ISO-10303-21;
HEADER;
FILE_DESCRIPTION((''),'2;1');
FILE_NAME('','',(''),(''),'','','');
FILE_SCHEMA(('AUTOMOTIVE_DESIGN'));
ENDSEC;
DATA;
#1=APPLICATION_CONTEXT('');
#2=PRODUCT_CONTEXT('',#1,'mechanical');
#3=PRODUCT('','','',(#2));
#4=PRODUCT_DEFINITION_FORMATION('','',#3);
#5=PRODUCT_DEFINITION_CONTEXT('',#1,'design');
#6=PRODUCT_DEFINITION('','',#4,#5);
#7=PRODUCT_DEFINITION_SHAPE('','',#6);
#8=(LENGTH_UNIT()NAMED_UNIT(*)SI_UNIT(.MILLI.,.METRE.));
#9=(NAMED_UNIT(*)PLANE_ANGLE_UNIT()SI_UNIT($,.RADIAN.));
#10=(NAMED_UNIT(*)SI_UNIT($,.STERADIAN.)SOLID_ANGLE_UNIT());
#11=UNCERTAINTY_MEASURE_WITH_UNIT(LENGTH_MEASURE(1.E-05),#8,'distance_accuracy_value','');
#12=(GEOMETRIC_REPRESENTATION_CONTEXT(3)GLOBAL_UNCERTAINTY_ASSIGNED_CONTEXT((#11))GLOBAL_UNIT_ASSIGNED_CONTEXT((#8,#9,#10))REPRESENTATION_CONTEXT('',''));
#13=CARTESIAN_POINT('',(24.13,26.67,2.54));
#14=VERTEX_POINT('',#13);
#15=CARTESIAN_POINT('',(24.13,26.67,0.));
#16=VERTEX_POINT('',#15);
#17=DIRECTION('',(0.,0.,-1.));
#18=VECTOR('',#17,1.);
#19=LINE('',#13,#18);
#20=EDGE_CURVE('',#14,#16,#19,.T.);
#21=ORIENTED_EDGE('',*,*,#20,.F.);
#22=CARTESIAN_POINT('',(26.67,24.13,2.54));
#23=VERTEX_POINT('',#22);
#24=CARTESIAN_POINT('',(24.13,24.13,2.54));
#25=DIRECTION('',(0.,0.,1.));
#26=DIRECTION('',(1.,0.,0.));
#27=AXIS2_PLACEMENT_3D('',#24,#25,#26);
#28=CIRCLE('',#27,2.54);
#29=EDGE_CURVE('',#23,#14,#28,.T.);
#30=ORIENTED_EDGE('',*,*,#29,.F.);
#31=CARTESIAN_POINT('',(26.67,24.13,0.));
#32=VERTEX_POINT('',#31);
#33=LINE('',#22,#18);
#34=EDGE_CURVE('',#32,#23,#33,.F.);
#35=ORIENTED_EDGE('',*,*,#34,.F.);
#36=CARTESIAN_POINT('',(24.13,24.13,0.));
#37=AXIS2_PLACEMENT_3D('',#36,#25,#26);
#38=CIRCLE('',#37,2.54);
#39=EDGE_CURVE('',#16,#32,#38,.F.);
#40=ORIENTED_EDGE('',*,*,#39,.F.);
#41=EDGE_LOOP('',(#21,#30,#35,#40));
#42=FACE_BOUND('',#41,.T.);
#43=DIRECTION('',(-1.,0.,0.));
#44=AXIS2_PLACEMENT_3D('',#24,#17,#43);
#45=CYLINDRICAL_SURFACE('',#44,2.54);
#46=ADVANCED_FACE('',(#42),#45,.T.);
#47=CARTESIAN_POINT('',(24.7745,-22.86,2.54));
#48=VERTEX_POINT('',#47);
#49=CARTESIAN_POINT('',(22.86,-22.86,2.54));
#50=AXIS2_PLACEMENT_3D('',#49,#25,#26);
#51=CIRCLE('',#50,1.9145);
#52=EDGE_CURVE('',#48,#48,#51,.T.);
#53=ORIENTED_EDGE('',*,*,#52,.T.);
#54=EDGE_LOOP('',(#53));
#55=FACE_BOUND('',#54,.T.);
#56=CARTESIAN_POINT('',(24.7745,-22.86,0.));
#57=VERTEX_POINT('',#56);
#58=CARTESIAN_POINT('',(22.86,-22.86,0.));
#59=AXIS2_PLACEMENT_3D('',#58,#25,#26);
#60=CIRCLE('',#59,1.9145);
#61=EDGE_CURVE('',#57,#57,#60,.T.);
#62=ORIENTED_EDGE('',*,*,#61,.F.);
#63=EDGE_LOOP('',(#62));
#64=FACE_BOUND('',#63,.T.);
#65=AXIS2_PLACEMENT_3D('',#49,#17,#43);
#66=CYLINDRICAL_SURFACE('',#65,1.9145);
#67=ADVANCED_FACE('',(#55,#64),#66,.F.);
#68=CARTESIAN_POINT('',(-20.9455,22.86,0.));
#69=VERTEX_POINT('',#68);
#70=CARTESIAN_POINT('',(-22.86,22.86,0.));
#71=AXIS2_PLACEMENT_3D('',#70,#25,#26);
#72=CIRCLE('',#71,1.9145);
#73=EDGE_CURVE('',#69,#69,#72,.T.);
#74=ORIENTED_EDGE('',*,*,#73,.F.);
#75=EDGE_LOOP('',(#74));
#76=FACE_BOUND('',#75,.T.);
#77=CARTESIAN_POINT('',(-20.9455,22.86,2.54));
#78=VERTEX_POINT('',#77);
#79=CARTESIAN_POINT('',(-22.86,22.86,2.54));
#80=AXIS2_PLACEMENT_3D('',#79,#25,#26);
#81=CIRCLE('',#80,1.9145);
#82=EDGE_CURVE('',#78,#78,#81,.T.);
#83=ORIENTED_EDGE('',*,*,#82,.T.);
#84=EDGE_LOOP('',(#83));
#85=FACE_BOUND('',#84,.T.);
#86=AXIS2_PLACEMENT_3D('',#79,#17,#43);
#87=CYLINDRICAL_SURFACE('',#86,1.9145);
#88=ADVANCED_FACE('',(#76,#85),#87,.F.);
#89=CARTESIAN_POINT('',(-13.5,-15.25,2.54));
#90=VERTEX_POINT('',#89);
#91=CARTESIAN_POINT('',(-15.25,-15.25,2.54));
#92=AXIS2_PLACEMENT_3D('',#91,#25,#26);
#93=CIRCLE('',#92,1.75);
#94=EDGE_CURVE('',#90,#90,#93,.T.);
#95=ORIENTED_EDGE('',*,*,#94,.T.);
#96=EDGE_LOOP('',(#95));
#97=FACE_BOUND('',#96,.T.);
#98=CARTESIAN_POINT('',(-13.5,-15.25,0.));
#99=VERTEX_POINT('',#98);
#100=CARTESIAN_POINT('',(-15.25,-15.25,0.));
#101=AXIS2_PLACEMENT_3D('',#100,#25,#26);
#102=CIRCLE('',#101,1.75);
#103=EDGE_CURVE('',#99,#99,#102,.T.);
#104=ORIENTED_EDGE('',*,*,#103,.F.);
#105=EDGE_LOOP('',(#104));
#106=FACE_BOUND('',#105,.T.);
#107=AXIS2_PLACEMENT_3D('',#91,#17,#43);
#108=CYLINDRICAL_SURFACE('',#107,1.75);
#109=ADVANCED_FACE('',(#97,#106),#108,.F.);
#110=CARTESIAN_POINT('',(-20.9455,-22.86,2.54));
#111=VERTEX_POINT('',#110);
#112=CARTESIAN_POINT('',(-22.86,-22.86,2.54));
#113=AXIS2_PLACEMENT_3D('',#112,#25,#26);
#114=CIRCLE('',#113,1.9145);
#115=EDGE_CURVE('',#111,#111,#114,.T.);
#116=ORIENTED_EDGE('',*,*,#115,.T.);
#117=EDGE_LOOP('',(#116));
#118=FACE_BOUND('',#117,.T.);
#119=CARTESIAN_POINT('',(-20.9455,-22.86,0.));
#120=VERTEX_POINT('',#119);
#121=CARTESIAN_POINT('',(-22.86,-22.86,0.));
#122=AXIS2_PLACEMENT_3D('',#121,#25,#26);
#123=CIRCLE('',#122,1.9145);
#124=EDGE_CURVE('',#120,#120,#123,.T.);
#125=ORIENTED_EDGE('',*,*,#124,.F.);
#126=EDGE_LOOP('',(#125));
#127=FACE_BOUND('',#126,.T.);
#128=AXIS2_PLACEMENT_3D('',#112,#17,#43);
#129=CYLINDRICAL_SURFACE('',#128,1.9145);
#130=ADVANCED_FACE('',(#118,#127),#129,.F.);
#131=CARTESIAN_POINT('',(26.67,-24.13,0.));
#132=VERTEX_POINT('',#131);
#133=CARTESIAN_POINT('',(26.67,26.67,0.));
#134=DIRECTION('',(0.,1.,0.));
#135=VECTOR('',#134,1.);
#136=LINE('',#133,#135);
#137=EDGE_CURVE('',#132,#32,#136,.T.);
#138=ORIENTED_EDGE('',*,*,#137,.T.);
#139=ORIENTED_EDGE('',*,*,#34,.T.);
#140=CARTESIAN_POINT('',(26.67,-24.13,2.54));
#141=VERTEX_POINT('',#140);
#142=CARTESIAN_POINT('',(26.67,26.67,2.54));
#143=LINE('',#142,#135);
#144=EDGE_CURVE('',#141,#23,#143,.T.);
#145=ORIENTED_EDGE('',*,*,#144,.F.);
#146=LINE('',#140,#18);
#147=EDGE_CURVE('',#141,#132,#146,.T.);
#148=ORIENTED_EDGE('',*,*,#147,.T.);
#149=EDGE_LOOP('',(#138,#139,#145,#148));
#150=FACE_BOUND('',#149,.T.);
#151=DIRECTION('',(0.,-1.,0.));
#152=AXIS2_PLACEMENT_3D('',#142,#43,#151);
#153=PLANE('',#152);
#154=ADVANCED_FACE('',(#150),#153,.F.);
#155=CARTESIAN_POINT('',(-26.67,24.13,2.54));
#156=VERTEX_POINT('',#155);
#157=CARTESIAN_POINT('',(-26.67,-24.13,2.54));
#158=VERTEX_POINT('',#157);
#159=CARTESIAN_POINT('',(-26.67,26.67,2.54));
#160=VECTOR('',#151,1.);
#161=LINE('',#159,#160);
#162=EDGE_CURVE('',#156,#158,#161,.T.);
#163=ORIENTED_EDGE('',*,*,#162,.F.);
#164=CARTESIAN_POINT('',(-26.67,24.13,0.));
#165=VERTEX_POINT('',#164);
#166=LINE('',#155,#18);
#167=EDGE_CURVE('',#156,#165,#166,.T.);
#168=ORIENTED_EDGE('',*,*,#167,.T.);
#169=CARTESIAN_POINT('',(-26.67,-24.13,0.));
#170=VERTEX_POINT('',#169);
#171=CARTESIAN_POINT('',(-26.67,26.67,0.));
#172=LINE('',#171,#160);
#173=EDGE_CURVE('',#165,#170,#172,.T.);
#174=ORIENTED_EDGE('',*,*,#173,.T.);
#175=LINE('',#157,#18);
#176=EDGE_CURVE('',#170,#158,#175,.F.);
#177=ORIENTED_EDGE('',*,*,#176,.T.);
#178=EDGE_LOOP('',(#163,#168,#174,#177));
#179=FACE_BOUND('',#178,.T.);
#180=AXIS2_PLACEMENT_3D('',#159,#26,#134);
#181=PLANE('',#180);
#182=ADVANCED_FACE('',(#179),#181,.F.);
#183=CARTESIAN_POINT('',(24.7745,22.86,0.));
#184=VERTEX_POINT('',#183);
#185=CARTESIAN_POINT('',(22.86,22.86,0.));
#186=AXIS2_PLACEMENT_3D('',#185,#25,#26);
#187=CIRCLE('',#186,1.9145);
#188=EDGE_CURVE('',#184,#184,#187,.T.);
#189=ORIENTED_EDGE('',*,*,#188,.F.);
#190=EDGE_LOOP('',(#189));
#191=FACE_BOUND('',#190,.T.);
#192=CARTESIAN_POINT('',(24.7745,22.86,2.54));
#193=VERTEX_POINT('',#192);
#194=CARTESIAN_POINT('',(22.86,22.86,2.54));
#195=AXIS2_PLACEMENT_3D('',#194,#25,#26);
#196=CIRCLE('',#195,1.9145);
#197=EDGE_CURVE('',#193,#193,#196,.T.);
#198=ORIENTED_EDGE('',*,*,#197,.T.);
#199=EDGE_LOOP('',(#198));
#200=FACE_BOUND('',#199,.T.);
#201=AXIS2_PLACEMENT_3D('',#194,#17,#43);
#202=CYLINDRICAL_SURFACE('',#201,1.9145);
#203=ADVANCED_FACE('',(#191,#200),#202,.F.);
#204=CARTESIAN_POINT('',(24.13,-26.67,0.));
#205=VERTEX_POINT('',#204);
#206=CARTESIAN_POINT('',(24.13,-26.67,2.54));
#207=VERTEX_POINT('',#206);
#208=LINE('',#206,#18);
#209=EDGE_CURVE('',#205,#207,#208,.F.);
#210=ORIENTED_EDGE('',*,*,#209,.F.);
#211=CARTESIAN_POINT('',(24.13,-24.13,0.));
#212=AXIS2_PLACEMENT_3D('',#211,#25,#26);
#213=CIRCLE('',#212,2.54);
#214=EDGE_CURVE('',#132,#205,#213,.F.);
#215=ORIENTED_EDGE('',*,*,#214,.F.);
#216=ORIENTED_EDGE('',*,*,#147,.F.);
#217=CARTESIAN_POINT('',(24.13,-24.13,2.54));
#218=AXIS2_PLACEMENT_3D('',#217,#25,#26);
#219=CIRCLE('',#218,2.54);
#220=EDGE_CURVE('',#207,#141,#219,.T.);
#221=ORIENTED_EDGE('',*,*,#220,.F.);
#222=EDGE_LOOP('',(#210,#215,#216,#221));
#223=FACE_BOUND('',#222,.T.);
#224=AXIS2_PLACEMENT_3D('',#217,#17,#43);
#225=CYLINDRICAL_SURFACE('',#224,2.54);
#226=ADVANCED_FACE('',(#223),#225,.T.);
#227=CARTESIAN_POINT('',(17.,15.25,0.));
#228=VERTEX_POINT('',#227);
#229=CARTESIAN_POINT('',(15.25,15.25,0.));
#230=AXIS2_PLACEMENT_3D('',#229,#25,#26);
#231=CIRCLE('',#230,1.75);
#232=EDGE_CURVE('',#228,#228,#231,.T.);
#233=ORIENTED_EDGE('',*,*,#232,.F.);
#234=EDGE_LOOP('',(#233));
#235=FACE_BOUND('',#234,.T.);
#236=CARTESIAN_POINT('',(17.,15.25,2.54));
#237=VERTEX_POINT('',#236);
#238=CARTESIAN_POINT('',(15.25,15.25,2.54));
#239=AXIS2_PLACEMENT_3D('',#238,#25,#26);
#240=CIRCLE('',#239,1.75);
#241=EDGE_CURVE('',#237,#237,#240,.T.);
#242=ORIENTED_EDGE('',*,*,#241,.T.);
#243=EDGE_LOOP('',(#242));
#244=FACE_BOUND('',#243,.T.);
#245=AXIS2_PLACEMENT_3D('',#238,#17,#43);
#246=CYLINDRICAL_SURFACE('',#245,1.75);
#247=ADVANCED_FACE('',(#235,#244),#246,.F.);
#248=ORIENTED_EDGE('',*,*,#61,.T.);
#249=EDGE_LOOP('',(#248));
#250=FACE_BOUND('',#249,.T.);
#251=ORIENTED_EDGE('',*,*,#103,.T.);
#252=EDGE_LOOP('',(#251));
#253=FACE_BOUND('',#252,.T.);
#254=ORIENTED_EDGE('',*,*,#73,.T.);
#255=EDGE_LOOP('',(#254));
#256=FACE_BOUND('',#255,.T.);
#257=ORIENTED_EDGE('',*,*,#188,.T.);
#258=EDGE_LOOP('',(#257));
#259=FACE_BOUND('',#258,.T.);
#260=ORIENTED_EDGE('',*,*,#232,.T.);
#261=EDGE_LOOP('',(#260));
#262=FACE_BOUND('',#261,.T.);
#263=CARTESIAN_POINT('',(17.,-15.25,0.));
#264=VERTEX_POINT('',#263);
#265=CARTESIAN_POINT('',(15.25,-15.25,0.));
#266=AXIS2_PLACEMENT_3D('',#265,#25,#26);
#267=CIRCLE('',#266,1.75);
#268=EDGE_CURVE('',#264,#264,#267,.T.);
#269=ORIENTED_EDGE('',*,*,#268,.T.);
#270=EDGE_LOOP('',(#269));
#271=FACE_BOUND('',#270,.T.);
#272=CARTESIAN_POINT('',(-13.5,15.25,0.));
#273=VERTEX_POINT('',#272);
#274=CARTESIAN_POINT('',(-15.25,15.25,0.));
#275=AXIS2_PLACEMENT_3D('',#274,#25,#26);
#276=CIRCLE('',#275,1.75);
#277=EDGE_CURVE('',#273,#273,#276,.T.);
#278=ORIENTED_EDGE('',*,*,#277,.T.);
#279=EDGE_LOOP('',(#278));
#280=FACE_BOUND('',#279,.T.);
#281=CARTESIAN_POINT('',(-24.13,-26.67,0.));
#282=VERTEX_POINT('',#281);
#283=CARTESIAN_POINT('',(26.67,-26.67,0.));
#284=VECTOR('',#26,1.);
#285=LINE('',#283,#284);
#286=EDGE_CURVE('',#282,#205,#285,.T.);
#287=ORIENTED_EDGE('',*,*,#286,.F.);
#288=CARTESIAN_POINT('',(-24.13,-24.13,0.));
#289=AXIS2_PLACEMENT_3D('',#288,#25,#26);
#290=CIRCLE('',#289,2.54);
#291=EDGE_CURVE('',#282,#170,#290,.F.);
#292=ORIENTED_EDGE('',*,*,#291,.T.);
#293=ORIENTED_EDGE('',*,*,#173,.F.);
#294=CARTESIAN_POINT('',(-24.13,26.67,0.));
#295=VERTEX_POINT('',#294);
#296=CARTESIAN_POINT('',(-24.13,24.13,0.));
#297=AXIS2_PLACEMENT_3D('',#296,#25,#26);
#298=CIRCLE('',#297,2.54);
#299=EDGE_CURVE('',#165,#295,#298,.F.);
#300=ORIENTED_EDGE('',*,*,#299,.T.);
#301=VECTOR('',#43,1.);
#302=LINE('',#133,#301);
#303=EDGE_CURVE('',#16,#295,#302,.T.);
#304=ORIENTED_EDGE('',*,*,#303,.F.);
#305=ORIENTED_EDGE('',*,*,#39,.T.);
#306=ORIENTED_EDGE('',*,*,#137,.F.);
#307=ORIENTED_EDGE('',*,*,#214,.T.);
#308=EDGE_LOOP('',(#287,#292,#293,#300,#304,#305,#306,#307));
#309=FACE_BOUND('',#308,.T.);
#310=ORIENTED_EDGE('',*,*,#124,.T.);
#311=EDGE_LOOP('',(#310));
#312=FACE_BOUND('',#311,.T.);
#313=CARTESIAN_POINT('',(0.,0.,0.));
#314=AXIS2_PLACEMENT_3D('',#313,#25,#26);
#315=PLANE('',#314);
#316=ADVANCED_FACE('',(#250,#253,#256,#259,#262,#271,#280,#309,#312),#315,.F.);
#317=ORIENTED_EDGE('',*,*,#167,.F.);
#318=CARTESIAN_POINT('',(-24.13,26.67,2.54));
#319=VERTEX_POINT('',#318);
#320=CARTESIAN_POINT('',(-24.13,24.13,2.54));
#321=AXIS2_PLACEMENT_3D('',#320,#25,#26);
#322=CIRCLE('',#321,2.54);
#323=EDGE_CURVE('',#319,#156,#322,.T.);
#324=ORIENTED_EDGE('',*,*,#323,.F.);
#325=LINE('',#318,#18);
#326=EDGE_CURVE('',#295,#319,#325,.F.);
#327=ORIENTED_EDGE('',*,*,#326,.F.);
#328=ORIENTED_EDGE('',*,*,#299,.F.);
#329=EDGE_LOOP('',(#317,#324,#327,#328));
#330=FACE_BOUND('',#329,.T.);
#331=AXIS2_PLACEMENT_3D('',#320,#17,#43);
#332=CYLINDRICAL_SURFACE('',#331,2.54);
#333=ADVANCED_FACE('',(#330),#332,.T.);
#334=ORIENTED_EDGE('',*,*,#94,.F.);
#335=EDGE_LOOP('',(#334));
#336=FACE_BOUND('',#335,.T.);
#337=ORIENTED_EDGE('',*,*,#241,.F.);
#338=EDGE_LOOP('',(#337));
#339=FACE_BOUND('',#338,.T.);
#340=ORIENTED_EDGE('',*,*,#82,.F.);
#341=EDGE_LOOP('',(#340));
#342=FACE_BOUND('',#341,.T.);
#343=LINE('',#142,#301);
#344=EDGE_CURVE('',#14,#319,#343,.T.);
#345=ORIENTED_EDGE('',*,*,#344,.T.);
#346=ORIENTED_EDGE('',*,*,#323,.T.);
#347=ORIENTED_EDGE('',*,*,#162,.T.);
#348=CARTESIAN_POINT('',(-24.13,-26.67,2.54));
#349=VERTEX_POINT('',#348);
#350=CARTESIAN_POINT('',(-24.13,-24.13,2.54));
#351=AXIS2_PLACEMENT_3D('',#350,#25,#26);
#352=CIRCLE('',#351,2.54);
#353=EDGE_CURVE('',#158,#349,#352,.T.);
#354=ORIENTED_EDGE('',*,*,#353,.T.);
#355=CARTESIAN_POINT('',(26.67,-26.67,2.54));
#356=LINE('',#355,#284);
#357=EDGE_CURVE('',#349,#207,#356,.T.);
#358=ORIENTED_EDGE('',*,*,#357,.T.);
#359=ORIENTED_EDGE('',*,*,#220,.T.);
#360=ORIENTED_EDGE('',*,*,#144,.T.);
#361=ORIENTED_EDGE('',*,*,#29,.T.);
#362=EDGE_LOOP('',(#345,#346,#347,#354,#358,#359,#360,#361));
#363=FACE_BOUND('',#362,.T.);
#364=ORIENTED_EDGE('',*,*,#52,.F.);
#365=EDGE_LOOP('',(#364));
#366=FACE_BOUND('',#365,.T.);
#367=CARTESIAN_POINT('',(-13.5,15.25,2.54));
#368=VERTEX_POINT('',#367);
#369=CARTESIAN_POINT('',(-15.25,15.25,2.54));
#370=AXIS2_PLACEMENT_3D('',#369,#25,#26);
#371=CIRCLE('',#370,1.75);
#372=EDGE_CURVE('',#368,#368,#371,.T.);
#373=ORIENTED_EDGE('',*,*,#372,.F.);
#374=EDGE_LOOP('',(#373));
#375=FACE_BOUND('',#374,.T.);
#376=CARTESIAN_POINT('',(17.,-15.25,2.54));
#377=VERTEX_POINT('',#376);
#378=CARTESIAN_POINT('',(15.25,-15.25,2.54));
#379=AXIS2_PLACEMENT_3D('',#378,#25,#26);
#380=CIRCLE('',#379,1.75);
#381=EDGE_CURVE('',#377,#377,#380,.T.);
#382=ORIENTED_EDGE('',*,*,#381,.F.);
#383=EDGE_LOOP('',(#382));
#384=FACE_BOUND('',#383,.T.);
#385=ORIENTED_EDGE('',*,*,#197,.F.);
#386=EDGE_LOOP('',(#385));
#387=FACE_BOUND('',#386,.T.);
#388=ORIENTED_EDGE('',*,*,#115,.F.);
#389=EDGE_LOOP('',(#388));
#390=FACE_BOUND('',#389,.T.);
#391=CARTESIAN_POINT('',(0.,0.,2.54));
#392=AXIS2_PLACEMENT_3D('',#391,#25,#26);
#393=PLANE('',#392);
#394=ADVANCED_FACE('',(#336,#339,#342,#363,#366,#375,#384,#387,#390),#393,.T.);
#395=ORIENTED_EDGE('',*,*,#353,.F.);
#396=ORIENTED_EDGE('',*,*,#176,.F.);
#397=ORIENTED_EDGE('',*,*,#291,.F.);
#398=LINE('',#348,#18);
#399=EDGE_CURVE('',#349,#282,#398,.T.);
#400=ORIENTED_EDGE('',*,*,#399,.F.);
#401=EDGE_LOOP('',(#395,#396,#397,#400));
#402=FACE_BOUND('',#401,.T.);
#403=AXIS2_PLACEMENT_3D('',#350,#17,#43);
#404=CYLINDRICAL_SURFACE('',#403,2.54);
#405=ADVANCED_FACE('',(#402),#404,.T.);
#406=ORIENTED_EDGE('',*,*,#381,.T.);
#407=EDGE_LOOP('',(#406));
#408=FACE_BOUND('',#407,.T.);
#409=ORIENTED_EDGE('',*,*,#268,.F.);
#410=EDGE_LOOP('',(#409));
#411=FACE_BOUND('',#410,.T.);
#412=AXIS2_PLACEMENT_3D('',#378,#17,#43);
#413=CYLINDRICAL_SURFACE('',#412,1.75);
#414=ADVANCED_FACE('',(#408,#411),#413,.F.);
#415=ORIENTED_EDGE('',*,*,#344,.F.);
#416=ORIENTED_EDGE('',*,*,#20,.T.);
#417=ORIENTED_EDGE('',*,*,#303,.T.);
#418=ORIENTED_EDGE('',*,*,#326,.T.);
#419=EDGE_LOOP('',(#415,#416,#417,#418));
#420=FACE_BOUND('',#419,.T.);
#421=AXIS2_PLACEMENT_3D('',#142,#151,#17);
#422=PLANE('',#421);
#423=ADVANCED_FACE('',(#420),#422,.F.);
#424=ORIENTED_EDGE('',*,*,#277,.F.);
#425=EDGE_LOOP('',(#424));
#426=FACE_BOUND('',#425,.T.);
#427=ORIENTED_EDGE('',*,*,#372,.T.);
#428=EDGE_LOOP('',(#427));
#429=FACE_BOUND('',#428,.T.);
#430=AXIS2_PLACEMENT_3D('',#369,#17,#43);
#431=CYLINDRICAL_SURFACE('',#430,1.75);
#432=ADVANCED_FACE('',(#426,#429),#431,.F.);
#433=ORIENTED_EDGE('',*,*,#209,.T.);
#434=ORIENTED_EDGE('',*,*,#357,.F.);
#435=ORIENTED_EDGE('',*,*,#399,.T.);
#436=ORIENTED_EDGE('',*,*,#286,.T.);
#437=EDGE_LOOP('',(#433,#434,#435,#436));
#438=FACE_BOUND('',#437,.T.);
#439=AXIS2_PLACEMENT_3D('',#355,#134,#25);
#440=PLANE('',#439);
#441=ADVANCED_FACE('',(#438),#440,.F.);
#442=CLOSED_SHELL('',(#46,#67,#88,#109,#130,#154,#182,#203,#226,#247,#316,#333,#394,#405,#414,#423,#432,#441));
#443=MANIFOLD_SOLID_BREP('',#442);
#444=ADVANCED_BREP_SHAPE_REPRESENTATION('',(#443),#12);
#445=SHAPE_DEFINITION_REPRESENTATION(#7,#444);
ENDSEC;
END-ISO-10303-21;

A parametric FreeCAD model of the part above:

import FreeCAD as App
import Part
import Sketcher
from FreeCAD import Vector
Q = App.Units.Quantity


def edges_at(feature, points):
    """Names of the edges that pass closest to the given points."""
    edges = feature.Shape.Edges
    near = lambda p: min(range(len(edges)), key=lambda i: edges[i].distToShape(Part.Vertex(*p))[0])
    return sorted({f"Edge{near(p) + 1}" for p in points})


def add_polygon(sketch, points):
    """Adds a closed chain of lines whose ends are joined by coincident constraints."""
    first, n = sketch.GeometryCount, len(points)
    for a, b in zip(points, points[1:] + points[:1]):
        sketch.addGeometry(Part.LineSegment(App.Vector(*a, 0), App.Vector(*b, 0)), False)
    for i in range(n):
        sketch.addConstraint(Sketcher.Constraint("Coincident", first + i, 2, first + (i + 1) % n, 1))

doc = App.newDocument("Part")
body = doc.addObject("PartDesign::Body", "Body")

# Sketch on XY plane
sketch1 = body.newObject("Sketcher::SketchObject", "Sketch")
sketch1.AttachmentSupport = (doc.getObject("XY_Plane"), [""])
sketch1.MapMode = "FlatFace"
add_polygon(sketch1, [(-26.67, -26.67), (26.67, -26.67), (26.67, 26.67), (-26.67, 26.67)])  # lines 0-3
sketch1.addGeometry(Part.Circle(Vector(22.86, -22.86, 0), Vector(0, 0, 1), 1.9145), False)  # 4
sketch1.addGeometry(Part.Circle(Vector(15.25, -15.25, 0), Vector(0, 0, 1), 1.75), False)  # 5
sketch1.addGeometry(Part.Circle(Vector(22.86, 22.86, 0), Vector(0, 0, 1), 1.9145), False)  # 6
sketch1.addGeometry(Part.Circle(Vector(15.25, 15.25, 0), Vector(0, 0, 1), 1.75), False)  # 7
sketch1.addGeometry(Part.Circle(Vector(-15.25, -15.25, 0), Vector(0, 0, 1), 1.75), False)  # 8
sketch1.addGeometry(Part.Circle(Vector(-22.86, -22.86, 0), Vector(0, 0, 1), 1.9145), False)  # 9
sketch1.addGeometry(Part.Circle(Vector(-15.25, 15.25, 0), Vector(0, 0, 1), 1.75), False)  # 10
sketch1.addGeometry(Part.Circle(Vector(-22.86, 22.86, 0), Vector(0, 0, 1), 1.9145), False)  # 11
sketch1.addConstraint(Sketcher.Constraint("Horizontal", 0))
sketch1.addConstraint(Sketcher.Constraint("Vertical", 1))
sketch1.addConstraint(Sketcher.Constraint("Horizontal", 2))
sketch1.addConstraint(Sketcher.Constraint("Vertical", 3))
sketch1.addConstraint(Sketcher.Constraint("Equal", 4, 6))
sketch1.addConstraint(Sketcher.Constraint("Equal", 5, 7))
sketch1.addConstraint(Sketcher.Constraint("Equal", 7, 8))
sketch1.addConstraint(Sketcher.Constraint("Equal", 6, 9))
sketch1.addConstraint(Sketcher.Constraint("Equal", 8, 10))
sketch1.addConstraint(Sketcher.Constraint("Equal", 9, 11))
sketch1.addConstraint(Sketcher.Constraint("Symmetric", 7, 3, 8, 3, -1, 1))
sketch1.addConstraint(Sketcher.Constraint("Symmetric", 6, 3, 9, 3, -1, 1))
sketch1.addConstraint(Sketcher.Constraint("Symmetric", 5, 3, 10, 3, -1, 1))
sketch1.addConstraint(Sketcher.Constraint("Symmetric", 4, 3, 11, 3, -1, 1))
sketch1.addConstraint(Sketcher.Constraint("Symmetric", 0, 2, 2, 2, -1, 1))
sketch1.addConstraint(Sketcher.Constraint("Symmetric", 5, 3, 8, 3, -2))
sketch1.addConstraint(Sketcher.Constraint("Symmetric", 4, 3, 9, 3, -2))
sketch1.addConstraint(Sketcher.Constraint("Equal", 2, 1))
sketch1.addConstraint(Sketcher.Constraint("DistanceX", 0, 1, 0, 2, Q("2.1 in")))
sketch1.addConstraint(Sketcher.Constraint("DistanceX", -1, 1, 4, 3, Q("0.9 in")))
sketch1.addConstraint(Sketcher.Constraint("DistanceY", 4, 3, -1, 1, Q("0.9 in")))
sketch1.addConstraint(Sketcher.Constraint("Diameter", 4, Q("3.829 mm")))
sketch1.addConstraint(Sketcher.Constraint("Diameter", 5, Q("3.5 mm")))
sketch1.addConstraint(Sketcher.Constraint("DistanceX", -1, 1, 5, 3, Q("15.25 mm")))
sketch1.addConstraint(Sketcher.Constraint("DistanceY", 5, 3, -1, 1, Q("15.25 mm")))
pad1 = body.newObject("PartDesign::Pad", "Pad")
pad1.Profile = sketch1
pad1.Length = Q("0.1 in")
doc.recompute()

fillet = body.newObject("PartDesign::Fillet", "Fillet")
fillet.Base = (pad1, edges_at(pad1, [
    (-26.67, -26.67, 1.27),
    (-26.67, 26.67, 1.27),
    (26.67, 26.67, 1.27),
    (26.67, -26.67, 1.27),
]))
fillet.Radius = Q("0.1 in")

doc.recompute()
